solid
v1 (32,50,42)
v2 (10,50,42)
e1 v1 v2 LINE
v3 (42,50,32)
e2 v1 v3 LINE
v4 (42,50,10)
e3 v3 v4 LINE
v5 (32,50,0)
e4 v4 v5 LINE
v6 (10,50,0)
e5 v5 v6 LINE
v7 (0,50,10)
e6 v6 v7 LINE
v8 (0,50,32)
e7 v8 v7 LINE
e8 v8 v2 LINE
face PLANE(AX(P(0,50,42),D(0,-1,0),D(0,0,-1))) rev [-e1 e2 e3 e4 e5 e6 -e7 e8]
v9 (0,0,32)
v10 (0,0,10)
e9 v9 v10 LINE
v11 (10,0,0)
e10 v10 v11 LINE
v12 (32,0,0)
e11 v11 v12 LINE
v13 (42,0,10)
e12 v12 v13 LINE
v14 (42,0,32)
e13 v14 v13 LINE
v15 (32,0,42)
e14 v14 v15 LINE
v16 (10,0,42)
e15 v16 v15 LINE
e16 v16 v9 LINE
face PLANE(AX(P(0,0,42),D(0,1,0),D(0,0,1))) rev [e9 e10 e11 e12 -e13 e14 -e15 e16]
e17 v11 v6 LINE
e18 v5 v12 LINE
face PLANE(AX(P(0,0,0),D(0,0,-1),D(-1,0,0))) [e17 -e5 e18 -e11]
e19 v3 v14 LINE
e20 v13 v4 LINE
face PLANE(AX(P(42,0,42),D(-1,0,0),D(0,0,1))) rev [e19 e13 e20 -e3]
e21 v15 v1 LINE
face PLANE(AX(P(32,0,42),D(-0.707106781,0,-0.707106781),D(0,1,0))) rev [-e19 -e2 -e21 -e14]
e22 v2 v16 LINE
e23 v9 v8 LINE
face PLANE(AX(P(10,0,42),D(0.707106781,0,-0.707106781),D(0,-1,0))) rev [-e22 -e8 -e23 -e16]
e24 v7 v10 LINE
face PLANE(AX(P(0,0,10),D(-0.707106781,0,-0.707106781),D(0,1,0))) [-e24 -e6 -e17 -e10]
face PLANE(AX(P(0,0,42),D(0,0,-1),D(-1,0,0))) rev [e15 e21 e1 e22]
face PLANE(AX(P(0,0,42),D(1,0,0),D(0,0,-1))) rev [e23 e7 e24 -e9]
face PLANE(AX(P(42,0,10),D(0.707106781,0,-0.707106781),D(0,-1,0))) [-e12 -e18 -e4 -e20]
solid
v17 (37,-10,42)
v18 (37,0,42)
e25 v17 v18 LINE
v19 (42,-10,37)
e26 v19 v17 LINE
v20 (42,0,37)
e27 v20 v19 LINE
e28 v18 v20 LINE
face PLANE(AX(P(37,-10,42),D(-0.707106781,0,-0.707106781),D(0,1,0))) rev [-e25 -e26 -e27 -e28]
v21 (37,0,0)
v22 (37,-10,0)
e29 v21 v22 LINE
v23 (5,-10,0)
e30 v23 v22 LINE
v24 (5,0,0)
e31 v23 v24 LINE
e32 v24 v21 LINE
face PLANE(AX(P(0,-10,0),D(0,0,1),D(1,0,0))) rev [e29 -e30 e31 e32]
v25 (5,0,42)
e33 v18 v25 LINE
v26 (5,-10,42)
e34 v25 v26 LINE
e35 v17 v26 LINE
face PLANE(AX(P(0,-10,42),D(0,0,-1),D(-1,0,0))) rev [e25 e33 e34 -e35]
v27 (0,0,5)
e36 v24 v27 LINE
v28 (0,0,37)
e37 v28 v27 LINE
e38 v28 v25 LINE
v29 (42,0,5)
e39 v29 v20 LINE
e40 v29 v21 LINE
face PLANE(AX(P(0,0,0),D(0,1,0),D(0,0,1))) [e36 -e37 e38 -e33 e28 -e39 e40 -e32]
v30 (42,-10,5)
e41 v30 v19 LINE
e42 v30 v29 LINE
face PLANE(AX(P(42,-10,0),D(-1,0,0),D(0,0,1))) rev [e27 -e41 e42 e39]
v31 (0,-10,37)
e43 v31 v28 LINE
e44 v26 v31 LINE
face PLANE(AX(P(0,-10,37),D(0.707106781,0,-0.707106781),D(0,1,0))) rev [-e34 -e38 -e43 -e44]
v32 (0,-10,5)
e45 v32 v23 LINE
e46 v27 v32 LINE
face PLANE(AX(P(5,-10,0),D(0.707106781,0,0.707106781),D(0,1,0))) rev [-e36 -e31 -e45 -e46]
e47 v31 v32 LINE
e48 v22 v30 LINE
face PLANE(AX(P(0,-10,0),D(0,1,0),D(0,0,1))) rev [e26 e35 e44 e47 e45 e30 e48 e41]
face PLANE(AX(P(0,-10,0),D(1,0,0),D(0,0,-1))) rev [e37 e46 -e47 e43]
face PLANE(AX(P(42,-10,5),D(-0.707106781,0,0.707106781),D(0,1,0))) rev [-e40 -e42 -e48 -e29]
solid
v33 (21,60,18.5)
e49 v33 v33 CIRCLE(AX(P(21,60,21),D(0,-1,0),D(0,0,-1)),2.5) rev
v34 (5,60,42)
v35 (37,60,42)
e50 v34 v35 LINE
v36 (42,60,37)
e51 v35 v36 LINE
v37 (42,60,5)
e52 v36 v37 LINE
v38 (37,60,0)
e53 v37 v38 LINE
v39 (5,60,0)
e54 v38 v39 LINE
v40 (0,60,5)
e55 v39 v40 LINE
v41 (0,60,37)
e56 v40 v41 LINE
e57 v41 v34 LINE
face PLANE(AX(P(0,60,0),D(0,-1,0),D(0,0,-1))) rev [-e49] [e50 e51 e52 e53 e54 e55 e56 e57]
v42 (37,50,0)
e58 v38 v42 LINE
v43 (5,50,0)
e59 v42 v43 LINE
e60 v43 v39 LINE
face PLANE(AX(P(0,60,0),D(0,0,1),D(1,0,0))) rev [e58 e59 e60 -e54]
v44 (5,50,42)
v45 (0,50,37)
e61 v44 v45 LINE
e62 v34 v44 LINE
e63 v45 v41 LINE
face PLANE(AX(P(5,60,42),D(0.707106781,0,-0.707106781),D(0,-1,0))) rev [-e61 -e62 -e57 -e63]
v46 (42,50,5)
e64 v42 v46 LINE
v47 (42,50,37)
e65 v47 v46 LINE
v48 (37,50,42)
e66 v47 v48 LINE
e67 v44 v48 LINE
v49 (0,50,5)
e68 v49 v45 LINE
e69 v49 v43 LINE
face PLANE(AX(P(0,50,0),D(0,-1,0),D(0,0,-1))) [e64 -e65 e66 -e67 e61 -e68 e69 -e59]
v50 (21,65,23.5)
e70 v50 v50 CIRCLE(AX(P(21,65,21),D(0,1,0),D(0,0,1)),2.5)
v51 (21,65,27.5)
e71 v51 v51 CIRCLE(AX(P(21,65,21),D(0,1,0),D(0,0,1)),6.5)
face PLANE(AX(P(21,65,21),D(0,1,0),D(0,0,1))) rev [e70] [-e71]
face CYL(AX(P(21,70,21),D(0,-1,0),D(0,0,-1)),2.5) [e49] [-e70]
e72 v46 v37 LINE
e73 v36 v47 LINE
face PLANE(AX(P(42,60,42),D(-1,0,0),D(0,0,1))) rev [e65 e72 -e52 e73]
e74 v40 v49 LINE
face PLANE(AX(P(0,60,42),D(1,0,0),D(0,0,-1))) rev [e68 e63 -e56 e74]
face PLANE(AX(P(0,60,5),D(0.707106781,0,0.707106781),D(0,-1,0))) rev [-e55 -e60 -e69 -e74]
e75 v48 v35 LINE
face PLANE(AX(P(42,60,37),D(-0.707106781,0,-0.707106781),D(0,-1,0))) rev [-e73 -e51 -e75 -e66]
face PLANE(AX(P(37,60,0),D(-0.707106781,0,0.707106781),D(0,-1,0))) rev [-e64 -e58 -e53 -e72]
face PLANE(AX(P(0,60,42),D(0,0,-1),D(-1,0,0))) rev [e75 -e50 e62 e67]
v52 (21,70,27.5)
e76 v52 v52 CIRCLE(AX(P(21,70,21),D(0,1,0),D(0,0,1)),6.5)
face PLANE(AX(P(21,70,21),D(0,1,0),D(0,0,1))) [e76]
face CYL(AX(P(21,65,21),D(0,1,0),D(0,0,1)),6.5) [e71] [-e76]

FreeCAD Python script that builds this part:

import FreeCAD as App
import Part
import Sketcher
from FreeCAD import Vector


def edges_at(feature, points):
    """Names of the edges that pass closest to the given points."""
    edges = feature.Shape.Edges
    near = lambda p: min(range(len(edges)), key=lambda i: edges[i].distToShape(Part.Vertex(*p))[0])
    return sorted({f"Edge{near(p) + 1}" for p in points})

doc = App.newDocument("Part")
body = doc.addObject("PartDesign::Body", "Body")

# Sketch on XY plane
sketch1 = doc.addObject("Sketcher::SketchObject", "Sketch")
body.addObject(sketch1)
sketch1.AttachmentSupport = (doc.XY_Plane, [""])
sketch1.MapMode = "FlatFace"
sketch1.addGeometry(Part.LineSegment(Vector(0, 50, 0), Vector(0, 0, 0)), False)
sketch1.addGeometry(Part.LineSegment(Vector(0, 0, 0), Vector(42, 0, 0)), False)
sketch1.addGeometry(Part.LineSegment(Vector(42, 0, 0), Vector(42, 50, 0)), False)
sketch1.addGeometry(Part.LineSegment(Vector(42, 50, 0), Vector(0, 50, 0)), False)
sketch1.addConstraint(Sketcher.Constraint("Coincident", 0, 2, 1, 1))
sketch1.addConstraint(Sketcher.Constraint("Coincident", 1, 2, 2, 1))
sketch1.addConstraint(Sketcher.Constraint("Coincident", 2, 2, 3, 1))
sketch1.addConstraint(Sketcher.Constraint("Coincident", 3, 2, 0, 1))
sketch1.addConstraint(Sketcher.Constraint("Vertical", 0))
sketch1.addConstraint(Sketcher.Constraint("Horizontal", 1))
sketch1.addConstraint(Sketcher.Constraint("Vertical", 2))
sketch1.addConstraint(Sketcher.Constraint("Horizontal", 3))
sketch1.addConstraint(Sketcher.Constraint("Coincident", 0, 2, -1, 1))
sketch1.addConstraint(Sketcher.Constraint("DistanceX", 1, 1, 1, 2, 42.0))
sketch1.addConstraint(Sketcher.Constraint("DistanceY", 0, 2, 0, 1, 50.0))
pad1 = doc.addObject("PartDesign::Pad", "Pad")
body.addObject(pad1)
pad1.Profile = sketch1
pad1.Length = 42
doc.recompute()

chamfer = doc.addObject("PartDesign::Chamfer", "Chamfer")
body.addObject(chamfer)
chamfer.Base = (pad1, edges_at(pad1, [
    (42, 25, 42),
    (0, 25, 42),
    (42, 25, 0),
    (0, 25, 0),
]))
chamfer.Size = 10
body2 = doc.addObject("PartDesign::Body", "Body001")

# Sketch on XZ plane
sketch2 = doc.addObject("Sketcher::SketchObject", "Sketch001")
body2.addObject(sketch2)
sketch2.AttachmentSupport = (doc.getObject("XZ_Plane001"), [""])
sketch2.MapMode = "FlatFace"
sketch2.AttachmentOffset = App.Placement(Vector(0, 0, -50), App.Rotation())
sketch2.addGeometry(Part.LineSegment(Vector(0, 0, 0), Vector(0, 42, 0)), False)
sketch2.addGeometry(Part.LineSegment(Vector(0, 42, 0), Vector(42, 42, 0)), False)
sketch2.addGeometry(Part.LineSegment(Vector(42, 42, 0), Vector(42, 0, 0)), False)
sketch2.addGeometry(Part.LineSegment(Vector(42, 0, 0), Vector(0, 0, 0)), False)
sketch2.addConstraint(Sketcher.Constraint("Coincident", 0, 2, 1, 1))
sketch2.addConstraint(Sketcher.Constraint("Coincident", 1, 2, 2, 1))
sketch2.addConstraint(Sketcher.Constraint("Coincident", 2, 2, 3, 1))
sketch2.addConstraint(Sketcher.Constraint("Coincident", 3, 2, 0, 1))
sketch2.addConstraint(Sketcher.Constraint("Vertical", 0))
sketch2.addConstraint(Sketcher.Constraint("Horizontal", 1))
sketch2.addConstraint(Sketcher.Constraint("Vertical", 2))
sketch2.addConstraint(Sketcher.Constraint("Horizontal", 3))
sketch2.addConstraint(Sketcher.Constraint("Coincident", 3, 2, -1, 1))
sketch2.addConstraint(Sketcher.Constraint("Equal", 3, 0))
sketch2.addConstraint(Sketcher.Constraint("DistanceX", 1, 1, 1, 2, 42.0))
pad2 = doc.addObject("PartDesign::Pad", "Pad001")
body2.addObject(pad2)
pad2.Profile = sketch2
pad2.Length = 10
pad2.Reversed = True
doc.recompute()

chamfer2 = doc.addObject("PartDesign::Chamfer", "Chamfer001")
body2.addObject(chamfer2)
chamfer2.Base = (pad2, edges_at(pad2, [
    (0, 55, 0),
    (42, 55, 0),
    (42, 55, 42),
    (0, 55, 42),
]))
chamfer2.Size = 5

# Sketch on XZ plane
sketch3 = doc.addObject("Sketcher::SketchObject", "Sketch002")
body2.addObject(sketch3)
sketch3.AttachmentSupport = (doc.getObject("XZ_Plane001"), [""])
sketch3.MapMode = "FlatFace"
sketch3.AttachmentOffset = App.Placement(Vector(0, 0, -60), App.Rotation())
sketch3.addGeometry(Part.Circle(Vector(21, 21, 0), Vector(0, 0, 1), 2.5), False)
sketch3.addConstraint(Sketcher.Constraint("Diameter", 0, 5.0))
sketch3.addConstraint(Sketcher.Constraint("DistanceX", -1, 1, 0, 3, 21.0))
sketch3.addConstraint(Sketcher.Constraint("DistanceY", -1, 1, 0, 3, 21.0))
pad3 = doc.addObject("PartDesign::Pad", "Pad002")
body2.addObject(pad3)
pad3.Profile = sketch3
pad3.Length = 10
pad3.Reversed = True

# Sketch on XZ plane
sketch4 = doc.addObject("Sketcher::SketchObject", "Sketch003")
body2.addObject(sketch4)
sketch4.AttachmentSupport = (doc.getObject("XZ_Plane001"), [""])
sketch4.MapMode = "FlatFace"
sketch4.AttachmentOffset = App.Placement(Vector(0, 0, -70), App.Rotation())
sketch4.addGeometry(Part.Circle(Vector(21, 21, 0), Vector(0, 0, 1), 6), False)
sketch4.addConstraint(Sketcher.Constraint("Diameter", 0, 13.0))
sketch4.addConstraint(Sketcher.Constraint("DistanceX", -1, 1, 0, 3, 21.0))
sketch4.addConstraint(Sketcher.Constraint("DistanceY", -1, 1, 0, 3, 21.0))
pad4 = doc.addObject("PartDesign::Pad", "Pad003")
body2.addObject(pad4)
pad4.Profile = sketch4
pad4.Length = 5
body3 = doc.addObject("PartDesign::Body", "Body002")

# Sketch on XZ plane
sketch5 = doc.addObject("Sketcher::SketchObject", "Sketch004")
body3.addObject(sketch5)
sketch5.AttachmentSupport = (doc.getObject("XZ_Plane002"), [""])
sketch5.MapMode = "FlatFace"
sketch5.addGeometry(Part.LineSegment(Vector(0, 42, 0), Vector(0, 0, 0)), False)
sketch5.addGeometry(Part.LineSegment(Vector(0, 0, 0), Vector(42, 0, 0)), False)
sketch5.addGeometry(Part.LineSegment(Vector(42, 0, 0), Vector(42, 42, 0)), False)
sketch5.addGeometry(Part.LineSegment(Vector(42, 42, 0), Vector(0, 42, 0)), False)
sketch5.addConstraint(Sketcher.Constraint("Coincident", 0, 2, 1, 1))
sketch5.addConstraint(Sketcher.Constraint("Coincident", 1, 2, 2, 1))
sketch5.addConstraint(Sketcher.Constraint("Coincident", 2, 2, 3, 1))
sketch5.addConstraint(Sketcher.Constraint("Coincident", 3, 2, 0, 1))
sketch5.addConstraint(Sketcher.Constraint("Vertical", 0))
sketch5.addConstraint(Sketcher.Constraint("Horizontal", 1))
sketch5.addConstraint(Sketcher.Constraint("Vertical", 2))
sketch5.addConstraint(Sketcher.Constraint("Horizontal", 3))
sketch5.addConstraint(Sketcher.Constraint("Coincident", 0, 2, -1, 1))
sketch5.addConstraint(Sketcher.Constraint("Equal", 3, 0))
sketch5.addConstraint(Sketcher.Constraint("DistanceX", 1, 1, 1, 2, 42.0))
pad5 = doc.addObject("PartDesign::Pad", "Pad004")
body3.addObject(pad5)
pad5.Profile = sketch5
pad5.Length = 10
doc.recompute()

chamfer3 = doc.addObject("PartDesign::Chamfer", "Chamfer002")
body3.addObject(chamfer3)
chamfer3.Base = (pad5, edges_at(pad5, [
    (0, -5, 42),
    (42, -5, 42),
    (42, -5, 0),
    (0, -5, 0),
]))
chamfer3.Size = 5

doc.recompute()
